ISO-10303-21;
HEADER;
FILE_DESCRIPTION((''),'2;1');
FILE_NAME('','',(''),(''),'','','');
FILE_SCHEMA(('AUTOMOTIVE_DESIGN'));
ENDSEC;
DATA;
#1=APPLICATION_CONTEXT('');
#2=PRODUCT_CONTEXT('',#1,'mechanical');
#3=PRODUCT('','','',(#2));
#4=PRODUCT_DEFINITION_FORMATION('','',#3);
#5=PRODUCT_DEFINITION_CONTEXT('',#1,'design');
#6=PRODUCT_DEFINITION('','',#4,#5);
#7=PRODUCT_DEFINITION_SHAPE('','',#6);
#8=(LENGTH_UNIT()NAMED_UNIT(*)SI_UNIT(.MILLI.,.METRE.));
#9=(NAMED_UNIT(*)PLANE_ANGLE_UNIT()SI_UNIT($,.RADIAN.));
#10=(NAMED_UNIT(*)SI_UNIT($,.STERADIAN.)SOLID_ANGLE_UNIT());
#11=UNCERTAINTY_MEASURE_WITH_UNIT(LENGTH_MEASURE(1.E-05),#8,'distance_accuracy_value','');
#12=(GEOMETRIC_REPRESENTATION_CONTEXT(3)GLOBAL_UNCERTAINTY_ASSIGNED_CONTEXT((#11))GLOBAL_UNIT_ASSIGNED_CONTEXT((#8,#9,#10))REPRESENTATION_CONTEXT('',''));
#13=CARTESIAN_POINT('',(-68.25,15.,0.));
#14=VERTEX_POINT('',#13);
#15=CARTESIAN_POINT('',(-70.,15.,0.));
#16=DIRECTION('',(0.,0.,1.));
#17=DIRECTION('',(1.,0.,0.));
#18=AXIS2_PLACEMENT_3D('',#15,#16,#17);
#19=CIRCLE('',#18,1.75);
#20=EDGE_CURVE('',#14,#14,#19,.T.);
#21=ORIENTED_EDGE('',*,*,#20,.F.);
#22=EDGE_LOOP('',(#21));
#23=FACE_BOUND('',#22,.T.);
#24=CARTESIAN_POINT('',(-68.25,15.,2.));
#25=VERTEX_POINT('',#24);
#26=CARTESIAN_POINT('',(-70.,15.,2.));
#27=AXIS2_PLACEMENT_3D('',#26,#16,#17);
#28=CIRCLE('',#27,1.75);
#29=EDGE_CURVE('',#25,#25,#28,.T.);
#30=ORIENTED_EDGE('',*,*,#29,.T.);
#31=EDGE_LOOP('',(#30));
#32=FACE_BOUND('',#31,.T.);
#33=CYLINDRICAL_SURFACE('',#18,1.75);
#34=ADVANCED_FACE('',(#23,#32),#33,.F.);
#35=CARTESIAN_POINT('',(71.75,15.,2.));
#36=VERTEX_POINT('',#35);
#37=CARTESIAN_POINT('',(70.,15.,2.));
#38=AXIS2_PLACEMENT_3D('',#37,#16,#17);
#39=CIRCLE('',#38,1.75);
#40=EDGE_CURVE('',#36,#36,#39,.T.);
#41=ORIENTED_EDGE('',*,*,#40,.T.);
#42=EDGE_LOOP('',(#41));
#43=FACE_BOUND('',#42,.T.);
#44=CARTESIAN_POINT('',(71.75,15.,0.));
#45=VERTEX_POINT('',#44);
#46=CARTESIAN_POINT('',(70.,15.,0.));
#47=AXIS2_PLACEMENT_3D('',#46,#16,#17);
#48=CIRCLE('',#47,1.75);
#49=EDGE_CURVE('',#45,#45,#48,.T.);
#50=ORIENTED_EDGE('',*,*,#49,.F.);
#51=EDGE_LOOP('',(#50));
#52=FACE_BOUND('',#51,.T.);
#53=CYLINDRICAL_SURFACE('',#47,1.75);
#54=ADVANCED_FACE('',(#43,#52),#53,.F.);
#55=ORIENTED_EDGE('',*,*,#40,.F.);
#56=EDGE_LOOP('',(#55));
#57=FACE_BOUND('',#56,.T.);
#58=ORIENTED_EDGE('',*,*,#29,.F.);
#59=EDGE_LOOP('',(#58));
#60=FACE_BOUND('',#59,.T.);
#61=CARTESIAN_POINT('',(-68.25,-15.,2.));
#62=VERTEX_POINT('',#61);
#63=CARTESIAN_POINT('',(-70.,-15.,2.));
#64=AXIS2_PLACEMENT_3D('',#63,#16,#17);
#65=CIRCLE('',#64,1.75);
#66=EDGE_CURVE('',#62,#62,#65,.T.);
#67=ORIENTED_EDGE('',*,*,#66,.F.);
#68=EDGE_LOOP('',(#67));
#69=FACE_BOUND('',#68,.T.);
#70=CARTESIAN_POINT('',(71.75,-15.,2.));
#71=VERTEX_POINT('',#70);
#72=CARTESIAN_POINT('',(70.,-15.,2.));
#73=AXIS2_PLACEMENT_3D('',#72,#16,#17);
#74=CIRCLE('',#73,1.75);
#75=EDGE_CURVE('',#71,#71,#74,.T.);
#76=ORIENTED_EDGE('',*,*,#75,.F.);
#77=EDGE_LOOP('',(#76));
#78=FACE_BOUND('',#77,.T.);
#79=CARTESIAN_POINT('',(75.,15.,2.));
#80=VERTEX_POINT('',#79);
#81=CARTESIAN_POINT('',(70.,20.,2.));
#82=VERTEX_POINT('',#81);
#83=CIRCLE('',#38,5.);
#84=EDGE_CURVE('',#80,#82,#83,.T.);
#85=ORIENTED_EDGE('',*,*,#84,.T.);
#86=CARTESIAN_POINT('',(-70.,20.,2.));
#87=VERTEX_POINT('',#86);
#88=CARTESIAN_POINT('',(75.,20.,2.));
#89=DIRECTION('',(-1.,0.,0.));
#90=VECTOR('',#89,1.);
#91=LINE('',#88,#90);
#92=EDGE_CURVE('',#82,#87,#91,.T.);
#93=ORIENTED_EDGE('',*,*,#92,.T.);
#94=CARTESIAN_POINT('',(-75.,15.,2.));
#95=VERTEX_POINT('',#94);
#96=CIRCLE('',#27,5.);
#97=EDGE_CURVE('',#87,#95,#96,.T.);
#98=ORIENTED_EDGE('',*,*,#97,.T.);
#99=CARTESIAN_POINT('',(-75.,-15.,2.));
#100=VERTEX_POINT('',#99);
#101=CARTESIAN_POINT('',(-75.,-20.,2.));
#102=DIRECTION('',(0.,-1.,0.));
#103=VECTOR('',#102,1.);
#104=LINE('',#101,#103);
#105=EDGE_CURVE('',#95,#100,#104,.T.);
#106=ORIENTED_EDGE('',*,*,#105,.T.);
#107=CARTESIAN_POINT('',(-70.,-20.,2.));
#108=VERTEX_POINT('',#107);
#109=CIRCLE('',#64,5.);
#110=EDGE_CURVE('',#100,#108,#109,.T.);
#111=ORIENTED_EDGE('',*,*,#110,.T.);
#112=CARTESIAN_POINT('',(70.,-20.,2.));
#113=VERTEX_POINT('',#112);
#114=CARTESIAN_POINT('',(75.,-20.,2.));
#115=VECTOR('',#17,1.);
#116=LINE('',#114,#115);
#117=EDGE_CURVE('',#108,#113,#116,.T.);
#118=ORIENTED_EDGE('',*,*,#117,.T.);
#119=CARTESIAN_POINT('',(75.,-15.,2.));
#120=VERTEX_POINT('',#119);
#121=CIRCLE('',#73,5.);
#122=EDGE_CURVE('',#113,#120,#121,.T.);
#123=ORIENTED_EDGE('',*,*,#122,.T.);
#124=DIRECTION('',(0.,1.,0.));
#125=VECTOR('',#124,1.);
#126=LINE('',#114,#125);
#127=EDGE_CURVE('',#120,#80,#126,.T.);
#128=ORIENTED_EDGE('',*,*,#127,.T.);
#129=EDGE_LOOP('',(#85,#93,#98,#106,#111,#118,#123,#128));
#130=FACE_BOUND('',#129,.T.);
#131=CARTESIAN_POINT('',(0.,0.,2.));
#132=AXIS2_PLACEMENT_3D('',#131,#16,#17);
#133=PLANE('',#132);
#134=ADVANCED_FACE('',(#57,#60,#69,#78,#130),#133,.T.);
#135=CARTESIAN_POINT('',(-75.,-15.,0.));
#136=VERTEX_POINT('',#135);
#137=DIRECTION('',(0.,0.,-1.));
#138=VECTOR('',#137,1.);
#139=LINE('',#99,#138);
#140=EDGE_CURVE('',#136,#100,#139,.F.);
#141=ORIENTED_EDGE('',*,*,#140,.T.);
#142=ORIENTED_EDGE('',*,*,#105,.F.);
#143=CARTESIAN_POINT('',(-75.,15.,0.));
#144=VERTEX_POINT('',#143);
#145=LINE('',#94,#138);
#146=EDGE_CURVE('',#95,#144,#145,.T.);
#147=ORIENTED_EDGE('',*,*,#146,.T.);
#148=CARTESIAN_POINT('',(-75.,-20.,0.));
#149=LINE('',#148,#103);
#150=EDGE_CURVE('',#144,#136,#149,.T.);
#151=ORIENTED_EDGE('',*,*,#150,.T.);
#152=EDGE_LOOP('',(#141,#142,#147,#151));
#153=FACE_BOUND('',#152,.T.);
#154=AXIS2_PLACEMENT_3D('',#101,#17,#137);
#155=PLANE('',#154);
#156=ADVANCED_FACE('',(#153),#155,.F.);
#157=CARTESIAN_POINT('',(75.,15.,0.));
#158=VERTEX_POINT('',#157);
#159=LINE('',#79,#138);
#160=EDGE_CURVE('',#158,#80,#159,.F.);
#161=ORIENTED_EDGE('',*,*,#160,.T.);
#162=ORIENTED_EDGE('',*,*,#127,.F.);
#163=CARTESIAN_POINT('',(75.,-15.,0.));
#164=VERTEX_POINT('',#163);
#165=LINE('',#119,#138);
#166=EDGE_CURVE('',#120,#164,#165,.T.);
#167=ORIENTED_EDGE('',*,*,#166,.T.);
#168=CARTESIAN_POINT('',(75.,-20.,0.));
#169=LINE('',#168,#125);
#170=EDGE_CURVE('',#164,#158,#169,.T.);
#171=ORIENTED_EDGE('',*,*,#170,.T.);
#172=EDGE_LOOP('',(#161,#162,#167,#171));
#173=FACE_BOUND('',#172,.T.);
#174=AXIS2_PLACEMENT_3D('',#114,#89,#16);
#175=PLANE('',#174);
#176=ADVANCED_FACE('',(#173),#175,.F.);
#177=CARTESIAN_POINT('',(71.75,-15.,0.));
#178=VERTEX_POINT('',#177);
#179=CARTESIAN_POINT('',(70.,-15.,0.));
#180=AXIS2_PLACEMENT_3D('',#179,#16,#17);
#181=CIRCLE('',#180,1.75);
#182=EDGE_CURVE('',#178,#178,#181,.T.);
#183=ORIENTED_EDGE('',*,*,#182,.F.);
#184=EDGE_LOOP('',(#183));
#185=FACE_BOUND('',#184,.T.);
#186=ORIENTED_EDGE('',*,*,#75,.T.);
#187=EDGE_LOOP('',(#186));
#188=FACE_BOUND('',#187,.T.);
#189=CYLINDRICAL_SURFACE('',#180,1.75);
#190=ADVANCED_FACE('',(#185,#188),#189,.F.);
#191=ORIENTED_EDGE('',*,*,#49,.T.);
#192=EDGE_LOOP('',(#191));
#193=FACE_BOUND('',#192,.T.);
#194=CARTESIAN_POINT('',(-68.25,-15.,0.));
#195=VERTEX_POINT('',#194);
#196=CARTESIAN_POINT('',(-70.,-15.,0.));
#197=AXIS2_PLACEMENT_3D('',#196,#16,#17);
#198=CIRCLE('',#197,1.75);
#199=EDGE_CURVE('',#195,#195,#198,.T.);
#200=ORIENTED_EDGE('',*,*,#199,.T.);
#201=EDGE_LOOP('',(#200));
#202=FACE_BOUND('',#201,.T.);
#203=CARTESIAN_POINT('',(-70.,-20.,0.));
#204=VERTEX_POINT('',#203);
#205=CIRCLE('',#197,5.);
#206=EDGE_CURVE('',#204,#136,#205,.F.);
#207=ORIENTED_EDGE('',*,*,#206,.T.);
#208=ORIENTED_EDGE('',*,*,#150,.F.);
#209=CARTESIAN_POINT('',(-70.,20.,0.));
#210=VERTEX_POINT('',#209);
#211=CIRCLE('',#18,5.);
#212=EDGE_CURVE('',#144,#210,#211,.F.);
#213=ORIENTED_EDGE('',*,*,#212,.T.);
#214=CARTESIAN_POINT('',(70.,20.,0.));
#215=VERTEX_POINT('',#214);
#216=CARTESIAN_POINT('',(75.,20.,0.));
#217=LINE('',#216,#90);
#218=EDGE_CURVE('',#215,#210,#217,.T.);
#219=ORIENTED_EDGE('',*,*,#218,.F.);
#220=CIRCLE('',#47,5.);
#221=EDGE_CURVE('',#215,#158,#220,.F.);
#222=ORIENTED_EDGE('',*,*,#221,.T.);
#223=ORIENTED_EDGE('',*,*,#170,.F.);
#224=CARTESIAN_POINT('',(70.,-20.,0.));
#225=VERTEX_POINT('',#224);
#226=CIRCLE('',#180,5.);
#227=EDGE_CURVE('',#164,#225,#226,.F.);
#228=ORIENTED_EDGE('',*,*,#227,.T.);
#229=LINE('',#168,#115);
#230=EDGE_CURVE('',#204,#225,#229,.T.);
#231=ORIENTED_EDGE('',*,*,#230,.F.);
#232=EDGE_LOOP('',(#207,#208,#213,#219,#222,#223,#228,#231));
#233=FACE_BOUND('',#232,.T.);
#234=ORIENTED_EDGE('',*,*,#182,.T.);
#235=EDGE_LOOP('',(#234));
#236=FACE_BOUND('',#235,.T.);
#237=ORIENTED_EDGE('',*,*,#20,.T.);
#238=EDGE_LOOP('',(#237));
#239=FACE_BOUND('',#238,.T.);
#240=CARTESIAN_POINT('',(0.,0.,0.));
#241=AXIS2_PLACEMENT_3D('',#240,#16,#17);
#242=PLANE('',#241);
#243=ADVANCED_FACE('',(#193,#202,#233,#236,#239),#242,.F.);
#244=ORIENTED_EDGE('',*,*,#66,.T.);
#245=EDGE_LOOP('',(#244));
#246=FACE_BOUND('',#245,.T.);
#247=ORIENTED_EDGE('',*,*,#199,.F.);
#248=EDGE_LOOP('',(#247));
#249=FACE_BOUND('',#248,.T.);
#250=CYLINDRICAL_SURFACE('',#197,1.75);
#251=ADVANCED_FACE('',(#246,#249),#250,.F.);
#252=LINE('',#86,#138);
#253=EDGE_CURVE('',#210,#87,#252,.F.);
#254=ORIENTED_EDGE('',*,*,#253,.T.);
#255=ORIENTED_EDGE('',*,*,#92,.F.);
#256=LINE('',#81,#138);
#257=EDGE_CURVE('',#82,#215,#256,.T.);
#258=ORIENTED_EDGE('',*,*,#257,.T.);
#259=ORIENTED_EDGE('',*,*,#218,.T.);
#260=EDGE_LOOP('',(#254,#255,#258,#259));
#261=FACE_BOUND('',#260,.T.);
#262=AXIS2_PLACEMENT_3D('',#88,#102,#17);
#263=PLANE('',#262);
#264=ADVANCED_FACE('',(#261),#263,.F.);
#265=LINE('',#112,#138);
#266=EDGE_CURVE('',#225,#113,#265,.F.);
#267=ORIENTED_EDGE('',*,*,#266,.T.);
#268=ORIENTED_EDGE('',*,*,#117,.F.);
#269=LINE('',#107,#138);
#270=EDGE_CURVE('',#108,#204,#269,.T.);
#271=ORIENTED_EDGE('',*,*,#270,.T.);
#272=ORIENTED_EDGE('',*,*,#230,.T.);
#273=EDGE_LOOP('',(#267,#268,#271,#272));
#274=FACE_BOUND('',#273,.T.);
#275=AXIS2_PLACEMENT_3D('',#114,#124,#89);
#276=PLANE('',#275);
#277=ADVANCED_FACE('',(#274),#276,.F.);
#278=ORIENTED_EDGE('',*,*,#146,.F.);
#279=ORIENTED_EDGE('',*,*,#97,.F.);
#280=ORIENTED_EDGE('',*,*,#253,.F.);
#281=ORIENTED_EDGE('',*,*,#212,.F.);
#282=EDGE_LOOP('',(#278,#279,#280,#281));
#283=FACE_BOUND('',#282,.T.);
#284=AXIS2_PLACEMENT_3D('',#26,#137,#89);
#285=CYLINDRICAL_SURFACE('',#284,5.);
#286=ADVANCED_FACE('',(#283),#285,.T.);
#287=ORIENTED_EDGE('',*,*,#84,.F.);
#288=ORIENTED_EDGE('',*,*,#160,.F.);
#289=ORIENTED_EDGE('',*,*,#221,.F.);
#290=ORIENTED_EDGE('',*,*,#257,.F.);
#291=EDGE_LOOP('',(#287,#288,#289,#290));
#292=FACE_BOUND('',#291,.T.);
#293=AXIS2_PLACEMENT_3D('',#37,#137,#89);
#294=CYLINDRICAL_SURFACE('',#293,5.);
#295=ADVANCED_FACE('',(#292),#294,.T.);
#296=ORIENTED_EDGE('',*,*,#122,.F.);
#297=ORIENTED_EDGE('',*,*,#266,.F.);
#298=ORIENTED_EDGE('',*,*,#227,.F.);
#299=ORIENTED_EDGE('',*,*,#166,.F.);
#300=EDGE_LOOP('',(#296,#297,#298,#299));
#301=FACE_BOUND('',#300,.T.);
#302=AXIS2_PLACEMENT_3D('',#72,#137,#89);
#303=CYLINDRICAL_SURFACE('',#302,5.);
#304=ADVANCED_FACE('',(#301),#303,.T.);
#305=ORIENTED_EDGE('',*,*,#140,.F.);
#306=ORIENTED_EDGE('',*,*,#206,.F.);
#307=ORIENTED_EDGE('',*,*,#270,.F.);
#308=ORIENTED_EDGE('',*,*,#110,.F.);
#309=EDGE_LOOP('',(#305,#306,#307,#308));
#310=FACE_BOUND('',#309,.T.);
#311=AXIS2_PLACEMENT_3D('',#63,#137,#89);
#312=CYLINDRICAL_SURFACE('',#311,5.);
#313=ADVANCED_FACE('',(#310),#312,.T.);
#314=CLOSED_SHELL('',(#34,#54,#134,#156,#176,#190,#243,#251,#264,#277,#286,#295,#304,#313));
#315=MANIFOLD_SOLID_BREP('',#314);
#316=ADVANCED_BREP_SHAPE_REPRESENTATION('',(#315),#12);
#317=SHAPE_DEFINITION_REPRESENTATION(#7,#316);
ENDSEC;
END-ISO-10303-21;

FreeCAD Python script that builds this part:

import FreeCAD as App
import Part
import Sketcher
from FreeCAD import Vector
Q = App.Units.Quantity


def edges_at(feature, points):
    """Names of the edges that pass closest to the given points."""
    edges = feature.Shape.Edges
    near = lambda p: min(range(len(edges)), key=lambda i: edges[i].distToShape(Part.Vertex(*p))[0])
    return sorted({f"Edge{near(p) + 1}" for p in points})


def add_polygon(sketch, points):
    """Adds a closed chain of lines whose ends are joined by coincident constraints."""
    first, n = sketch.GeometryCount, len(points)
    for a, b in zip(points, points[1:] + points[:1]):
        sketch.addGeometry(Part.LineSegment(App.Vector(*a, 0), App.Vector(*b, 0)), False)
    for i in range(n):
        sketch.addConstraint(Sketcher.Constraint("Coincident", first + i, 2, first + (i + 1) % n, 1))

doc = App.newDocument("Part")
body = doc.addObject("PartDesign::Body", "Body")

# Sketch on XY plane
sketch1 = body.newObject("Sketcher::SketchObject", "Sketch")
sketch1.AttachmentSupport = (doc.getObject("XY_Plane"), [""])
sketch1.MapMode = "FlatFace"
add_polygon(sketch1, [(-75, 20), (-75, -20), (75, -20), (75, 20)])  # lines 0-3
sketch1.addConstraint([
    Sketcher.Constraint("Vertical", 0),
    Sketcher.Constraint("Horizontal", 1),
    Sketcher.Constraint("Vertical", 2),
    Sketcher.Constraint("Horizontal", 3),
    Sketcher.Constraint("Symmetric", 0, 2, 2, 2, -1, 1),
    Sketcher.Constraint("DistanceX", 1, 1, 1, 2, Q("150 mm")),
    Sketcher.Constraint("DistanceY", 0, 2, 0, 1, Q("40 mm")),
])
pad1 = body.newObject("PartDesign::Pad", "Pad")
pad1.Profile = sketch1
pad1.Length = 2

# Sketch on XY plane
sketch2 = body.newObject("Sketcher::SketchObject", "Sketch001")
sketch2.AttachmentSupport = (doc.getObject("XY_Plane"), [""])
sketch2.MapMode = "FlatFace"
sketch2.AttachmentOffset = App.Placement(Vector(0, 0, 2), App.Rotation())
sketch2.addGeometry([
    Part.Circle(Vector(-70, 15, 0), Vector(0, 0, 1), 1.8),
    Part.Circle(Vector(-70, -15, 0), Vector(0, 0, 1), 1.8),
    Part.Circle(Vector(70, -15, 0), Vector(0, 0, 1), 1.8),
    Part.Circle(Vector(70, 15, 0), Vector(0, 0, 1), 1.8),
], False)
sketch2.addConstraint([
    Sketcher.Constraint("Equal", 0, 1),
    Sketcher.Constraint("Equal", 1, 2),
    Sketcher.Constraint("Equal", 2, 3),
    Sketcher.Constraint("Symmetric", 0, 3, 2, 3, -1, 1),
    Sketcher.Constraint("Symmetric", 1, 3, 3, 3, -1, 1),
    Sketcher.Constraint("Symmetric", 1, 3, 2, 3, -2),
    Sketcher.Constraint("Diameter", 0, Q("3.5 mm")),
    Sketcher.Constraint("DistanceX", 0, 3, -1, 1, Q("70 mm")),
    Sketcher.Constraint("DistanceY", -1, 1, 0, 3, Q("15 mm")),
])
pocket1 = body.newObject("PartDesign::Pocket", "Pocket")
pocket1.Profile = sketch2
pocket1.Type = "ThroughAll"
doc.recompute()

fillet = body.newObject("PartDesign::Fillet", "Fillet")
fillet.Base = (pocket1, edges_at(pocket1, [
    (-75, 20, 1),
    (75, 20, 1),
    (75, -20, 1),
    (-75, -20, 1),
]))
fillet.Radius = 5

doc.recompute()
